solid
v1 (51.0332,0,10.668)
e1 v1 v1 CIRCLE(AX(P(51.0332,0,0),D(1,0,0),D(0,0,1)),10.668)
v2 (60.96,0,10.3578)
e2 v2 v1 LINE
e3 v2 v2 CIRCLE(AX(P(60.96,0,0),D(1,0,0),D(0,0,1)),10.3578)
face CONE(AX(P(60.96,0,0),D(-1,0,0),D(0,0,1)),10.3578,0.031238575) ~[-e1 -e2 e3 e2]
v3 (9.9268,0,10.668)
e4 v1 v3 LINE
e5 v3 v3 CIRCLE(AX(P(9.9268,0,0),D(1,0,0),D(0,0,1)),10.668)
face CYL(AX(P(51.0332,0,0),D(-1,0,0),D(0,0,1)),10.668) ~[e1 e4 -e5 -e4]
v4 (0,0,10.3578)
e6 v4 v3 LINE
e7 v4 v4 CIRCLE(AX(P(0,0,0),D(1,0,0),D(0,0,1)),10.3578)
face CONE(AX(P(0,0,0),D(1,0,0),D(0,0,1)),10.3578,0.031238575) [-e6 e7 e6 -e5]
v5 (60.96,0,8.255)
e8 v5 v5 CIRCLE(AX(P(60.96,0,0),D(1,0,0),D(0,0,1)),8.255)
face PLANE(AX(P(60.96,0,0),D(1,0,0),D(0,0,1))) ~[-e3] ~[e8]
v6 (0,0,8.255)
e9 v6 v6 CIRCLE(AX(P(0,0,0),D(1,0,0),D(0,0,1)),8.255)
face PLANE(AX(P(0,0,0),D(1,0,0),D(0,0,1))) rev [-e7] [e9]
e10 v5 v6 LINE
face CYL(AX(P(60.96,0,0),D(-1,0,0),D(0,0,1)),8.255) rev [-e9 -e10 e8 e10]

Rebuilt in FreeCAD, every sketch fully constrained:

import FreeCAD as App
import Part
import Sketcher
Q = App.Units.Quantity

doc = App.newDocument("Part")
body = doc.addObject("PartDesign::Body", "Body")

# Sketch on XZ plane
sketch1 = body.newObject("Sketcher::SketchObject", "Sketch")
sketch1.AttachmentSupport = (doc.getObject("XZ_Plane"), [""])
sketch1.MapMode = "FlatFace"
sketch1.addGeometry(Part.LineSegment(App.Vector(61, 10.4, 0), App.Vector(61, 8.3, 0)), False)
sketch1.addGeometry(Part.LineSegment(App.Vector(61, 8.3, 0), App.Vector(0, 8.3, 0)), False)
sketch1.addGeometry(Part.LineSegment(App.Vector(0, 8.3, 0), App.Vector(0, 10.4, 0)), False)
sketch1.addGeometry(Part.LineSegment(App.Vector(0, 10.4, 0), App.Vector(9.9, 10.7, 0)), False)
sketch1.addGeometry(Part.LineSegment(App.Vector(9.9, 10.7, 0), App.Vector(51, 10.7, 0)), False)
sketch1.addGeometry(Part.LineSegment(App.Vector(51, 10.7, 0), App.Vector(61, 10.4, 0)), False)
sketch1.addConstraint(Sketcher.Constraint("Coincident", 0, 2, 1, 1))
sketch1.addConstraint(Sketcher.Constraint("Coincident", 1, 2, 2, 1))
sketch1.addConstraint(Sketcher.Constraint("Coincident", 2, 2, 3, 1))
sketch1.addConstraint(Sketcher.Constraint("Coincident", 3, 2, 4, 1))
sketch1.addConstraint(Sketcher.Constraint("Coincident", 4, 2, 5, 1))
sketch1.addConstraint(Sketcher.Constraint("Coincident", 5, 2, 0, 1))
sketch1.addConstraint(Sketcher.Constraint("Vertical", 0))
sketch1.addConstraint(Sketcher.Constraint("Horizontal", 1))
sketch1.addConstraint(Sketcher.Constraint("Vertical", 2))
sketch1.addConstraint(Sketcher.Constraint("Horizontal", 4))
sketch1.addConstraint(Sketcher.Constraint("PointOnObject", 1, 2, -2))
sketch1.addConstraint(Sketcher.Constraint("Horizontal", 2, 2, 5, 2))
sketch1.addConstraint(Sketcher.Constraint("Equal", 3, 5))
sketch1.addConstraint(Sketcher.Constraint("DistanceX", 1, 2, 1, 1, Q("2.4 in")))
sketch1.addConstraint(Sketcher.Constraint("Angle", 3, Q("1.7898 deg")))
sketch1.addConstraint(Sketcher.Constraint("DistanceY", -1, 1, 3, 2, Q("0.42 in")))
sketch1.addConstraint(Sketcher.Constraint("Distance", 3, Q("0.391 in")))
sketch1.addConstraint(Sketcher.Constraint("DistanceY", -1, 1, 0, 2, Q("0.325 in")))
revolution = body.newObject("PartDesign::Revolution", "Revolution")
revolution.Profile = sketch1
revolution.ReferenceAxis = (sketch1, ["H_Axis"])
revolution.Angle = 360

doc.recompute()
